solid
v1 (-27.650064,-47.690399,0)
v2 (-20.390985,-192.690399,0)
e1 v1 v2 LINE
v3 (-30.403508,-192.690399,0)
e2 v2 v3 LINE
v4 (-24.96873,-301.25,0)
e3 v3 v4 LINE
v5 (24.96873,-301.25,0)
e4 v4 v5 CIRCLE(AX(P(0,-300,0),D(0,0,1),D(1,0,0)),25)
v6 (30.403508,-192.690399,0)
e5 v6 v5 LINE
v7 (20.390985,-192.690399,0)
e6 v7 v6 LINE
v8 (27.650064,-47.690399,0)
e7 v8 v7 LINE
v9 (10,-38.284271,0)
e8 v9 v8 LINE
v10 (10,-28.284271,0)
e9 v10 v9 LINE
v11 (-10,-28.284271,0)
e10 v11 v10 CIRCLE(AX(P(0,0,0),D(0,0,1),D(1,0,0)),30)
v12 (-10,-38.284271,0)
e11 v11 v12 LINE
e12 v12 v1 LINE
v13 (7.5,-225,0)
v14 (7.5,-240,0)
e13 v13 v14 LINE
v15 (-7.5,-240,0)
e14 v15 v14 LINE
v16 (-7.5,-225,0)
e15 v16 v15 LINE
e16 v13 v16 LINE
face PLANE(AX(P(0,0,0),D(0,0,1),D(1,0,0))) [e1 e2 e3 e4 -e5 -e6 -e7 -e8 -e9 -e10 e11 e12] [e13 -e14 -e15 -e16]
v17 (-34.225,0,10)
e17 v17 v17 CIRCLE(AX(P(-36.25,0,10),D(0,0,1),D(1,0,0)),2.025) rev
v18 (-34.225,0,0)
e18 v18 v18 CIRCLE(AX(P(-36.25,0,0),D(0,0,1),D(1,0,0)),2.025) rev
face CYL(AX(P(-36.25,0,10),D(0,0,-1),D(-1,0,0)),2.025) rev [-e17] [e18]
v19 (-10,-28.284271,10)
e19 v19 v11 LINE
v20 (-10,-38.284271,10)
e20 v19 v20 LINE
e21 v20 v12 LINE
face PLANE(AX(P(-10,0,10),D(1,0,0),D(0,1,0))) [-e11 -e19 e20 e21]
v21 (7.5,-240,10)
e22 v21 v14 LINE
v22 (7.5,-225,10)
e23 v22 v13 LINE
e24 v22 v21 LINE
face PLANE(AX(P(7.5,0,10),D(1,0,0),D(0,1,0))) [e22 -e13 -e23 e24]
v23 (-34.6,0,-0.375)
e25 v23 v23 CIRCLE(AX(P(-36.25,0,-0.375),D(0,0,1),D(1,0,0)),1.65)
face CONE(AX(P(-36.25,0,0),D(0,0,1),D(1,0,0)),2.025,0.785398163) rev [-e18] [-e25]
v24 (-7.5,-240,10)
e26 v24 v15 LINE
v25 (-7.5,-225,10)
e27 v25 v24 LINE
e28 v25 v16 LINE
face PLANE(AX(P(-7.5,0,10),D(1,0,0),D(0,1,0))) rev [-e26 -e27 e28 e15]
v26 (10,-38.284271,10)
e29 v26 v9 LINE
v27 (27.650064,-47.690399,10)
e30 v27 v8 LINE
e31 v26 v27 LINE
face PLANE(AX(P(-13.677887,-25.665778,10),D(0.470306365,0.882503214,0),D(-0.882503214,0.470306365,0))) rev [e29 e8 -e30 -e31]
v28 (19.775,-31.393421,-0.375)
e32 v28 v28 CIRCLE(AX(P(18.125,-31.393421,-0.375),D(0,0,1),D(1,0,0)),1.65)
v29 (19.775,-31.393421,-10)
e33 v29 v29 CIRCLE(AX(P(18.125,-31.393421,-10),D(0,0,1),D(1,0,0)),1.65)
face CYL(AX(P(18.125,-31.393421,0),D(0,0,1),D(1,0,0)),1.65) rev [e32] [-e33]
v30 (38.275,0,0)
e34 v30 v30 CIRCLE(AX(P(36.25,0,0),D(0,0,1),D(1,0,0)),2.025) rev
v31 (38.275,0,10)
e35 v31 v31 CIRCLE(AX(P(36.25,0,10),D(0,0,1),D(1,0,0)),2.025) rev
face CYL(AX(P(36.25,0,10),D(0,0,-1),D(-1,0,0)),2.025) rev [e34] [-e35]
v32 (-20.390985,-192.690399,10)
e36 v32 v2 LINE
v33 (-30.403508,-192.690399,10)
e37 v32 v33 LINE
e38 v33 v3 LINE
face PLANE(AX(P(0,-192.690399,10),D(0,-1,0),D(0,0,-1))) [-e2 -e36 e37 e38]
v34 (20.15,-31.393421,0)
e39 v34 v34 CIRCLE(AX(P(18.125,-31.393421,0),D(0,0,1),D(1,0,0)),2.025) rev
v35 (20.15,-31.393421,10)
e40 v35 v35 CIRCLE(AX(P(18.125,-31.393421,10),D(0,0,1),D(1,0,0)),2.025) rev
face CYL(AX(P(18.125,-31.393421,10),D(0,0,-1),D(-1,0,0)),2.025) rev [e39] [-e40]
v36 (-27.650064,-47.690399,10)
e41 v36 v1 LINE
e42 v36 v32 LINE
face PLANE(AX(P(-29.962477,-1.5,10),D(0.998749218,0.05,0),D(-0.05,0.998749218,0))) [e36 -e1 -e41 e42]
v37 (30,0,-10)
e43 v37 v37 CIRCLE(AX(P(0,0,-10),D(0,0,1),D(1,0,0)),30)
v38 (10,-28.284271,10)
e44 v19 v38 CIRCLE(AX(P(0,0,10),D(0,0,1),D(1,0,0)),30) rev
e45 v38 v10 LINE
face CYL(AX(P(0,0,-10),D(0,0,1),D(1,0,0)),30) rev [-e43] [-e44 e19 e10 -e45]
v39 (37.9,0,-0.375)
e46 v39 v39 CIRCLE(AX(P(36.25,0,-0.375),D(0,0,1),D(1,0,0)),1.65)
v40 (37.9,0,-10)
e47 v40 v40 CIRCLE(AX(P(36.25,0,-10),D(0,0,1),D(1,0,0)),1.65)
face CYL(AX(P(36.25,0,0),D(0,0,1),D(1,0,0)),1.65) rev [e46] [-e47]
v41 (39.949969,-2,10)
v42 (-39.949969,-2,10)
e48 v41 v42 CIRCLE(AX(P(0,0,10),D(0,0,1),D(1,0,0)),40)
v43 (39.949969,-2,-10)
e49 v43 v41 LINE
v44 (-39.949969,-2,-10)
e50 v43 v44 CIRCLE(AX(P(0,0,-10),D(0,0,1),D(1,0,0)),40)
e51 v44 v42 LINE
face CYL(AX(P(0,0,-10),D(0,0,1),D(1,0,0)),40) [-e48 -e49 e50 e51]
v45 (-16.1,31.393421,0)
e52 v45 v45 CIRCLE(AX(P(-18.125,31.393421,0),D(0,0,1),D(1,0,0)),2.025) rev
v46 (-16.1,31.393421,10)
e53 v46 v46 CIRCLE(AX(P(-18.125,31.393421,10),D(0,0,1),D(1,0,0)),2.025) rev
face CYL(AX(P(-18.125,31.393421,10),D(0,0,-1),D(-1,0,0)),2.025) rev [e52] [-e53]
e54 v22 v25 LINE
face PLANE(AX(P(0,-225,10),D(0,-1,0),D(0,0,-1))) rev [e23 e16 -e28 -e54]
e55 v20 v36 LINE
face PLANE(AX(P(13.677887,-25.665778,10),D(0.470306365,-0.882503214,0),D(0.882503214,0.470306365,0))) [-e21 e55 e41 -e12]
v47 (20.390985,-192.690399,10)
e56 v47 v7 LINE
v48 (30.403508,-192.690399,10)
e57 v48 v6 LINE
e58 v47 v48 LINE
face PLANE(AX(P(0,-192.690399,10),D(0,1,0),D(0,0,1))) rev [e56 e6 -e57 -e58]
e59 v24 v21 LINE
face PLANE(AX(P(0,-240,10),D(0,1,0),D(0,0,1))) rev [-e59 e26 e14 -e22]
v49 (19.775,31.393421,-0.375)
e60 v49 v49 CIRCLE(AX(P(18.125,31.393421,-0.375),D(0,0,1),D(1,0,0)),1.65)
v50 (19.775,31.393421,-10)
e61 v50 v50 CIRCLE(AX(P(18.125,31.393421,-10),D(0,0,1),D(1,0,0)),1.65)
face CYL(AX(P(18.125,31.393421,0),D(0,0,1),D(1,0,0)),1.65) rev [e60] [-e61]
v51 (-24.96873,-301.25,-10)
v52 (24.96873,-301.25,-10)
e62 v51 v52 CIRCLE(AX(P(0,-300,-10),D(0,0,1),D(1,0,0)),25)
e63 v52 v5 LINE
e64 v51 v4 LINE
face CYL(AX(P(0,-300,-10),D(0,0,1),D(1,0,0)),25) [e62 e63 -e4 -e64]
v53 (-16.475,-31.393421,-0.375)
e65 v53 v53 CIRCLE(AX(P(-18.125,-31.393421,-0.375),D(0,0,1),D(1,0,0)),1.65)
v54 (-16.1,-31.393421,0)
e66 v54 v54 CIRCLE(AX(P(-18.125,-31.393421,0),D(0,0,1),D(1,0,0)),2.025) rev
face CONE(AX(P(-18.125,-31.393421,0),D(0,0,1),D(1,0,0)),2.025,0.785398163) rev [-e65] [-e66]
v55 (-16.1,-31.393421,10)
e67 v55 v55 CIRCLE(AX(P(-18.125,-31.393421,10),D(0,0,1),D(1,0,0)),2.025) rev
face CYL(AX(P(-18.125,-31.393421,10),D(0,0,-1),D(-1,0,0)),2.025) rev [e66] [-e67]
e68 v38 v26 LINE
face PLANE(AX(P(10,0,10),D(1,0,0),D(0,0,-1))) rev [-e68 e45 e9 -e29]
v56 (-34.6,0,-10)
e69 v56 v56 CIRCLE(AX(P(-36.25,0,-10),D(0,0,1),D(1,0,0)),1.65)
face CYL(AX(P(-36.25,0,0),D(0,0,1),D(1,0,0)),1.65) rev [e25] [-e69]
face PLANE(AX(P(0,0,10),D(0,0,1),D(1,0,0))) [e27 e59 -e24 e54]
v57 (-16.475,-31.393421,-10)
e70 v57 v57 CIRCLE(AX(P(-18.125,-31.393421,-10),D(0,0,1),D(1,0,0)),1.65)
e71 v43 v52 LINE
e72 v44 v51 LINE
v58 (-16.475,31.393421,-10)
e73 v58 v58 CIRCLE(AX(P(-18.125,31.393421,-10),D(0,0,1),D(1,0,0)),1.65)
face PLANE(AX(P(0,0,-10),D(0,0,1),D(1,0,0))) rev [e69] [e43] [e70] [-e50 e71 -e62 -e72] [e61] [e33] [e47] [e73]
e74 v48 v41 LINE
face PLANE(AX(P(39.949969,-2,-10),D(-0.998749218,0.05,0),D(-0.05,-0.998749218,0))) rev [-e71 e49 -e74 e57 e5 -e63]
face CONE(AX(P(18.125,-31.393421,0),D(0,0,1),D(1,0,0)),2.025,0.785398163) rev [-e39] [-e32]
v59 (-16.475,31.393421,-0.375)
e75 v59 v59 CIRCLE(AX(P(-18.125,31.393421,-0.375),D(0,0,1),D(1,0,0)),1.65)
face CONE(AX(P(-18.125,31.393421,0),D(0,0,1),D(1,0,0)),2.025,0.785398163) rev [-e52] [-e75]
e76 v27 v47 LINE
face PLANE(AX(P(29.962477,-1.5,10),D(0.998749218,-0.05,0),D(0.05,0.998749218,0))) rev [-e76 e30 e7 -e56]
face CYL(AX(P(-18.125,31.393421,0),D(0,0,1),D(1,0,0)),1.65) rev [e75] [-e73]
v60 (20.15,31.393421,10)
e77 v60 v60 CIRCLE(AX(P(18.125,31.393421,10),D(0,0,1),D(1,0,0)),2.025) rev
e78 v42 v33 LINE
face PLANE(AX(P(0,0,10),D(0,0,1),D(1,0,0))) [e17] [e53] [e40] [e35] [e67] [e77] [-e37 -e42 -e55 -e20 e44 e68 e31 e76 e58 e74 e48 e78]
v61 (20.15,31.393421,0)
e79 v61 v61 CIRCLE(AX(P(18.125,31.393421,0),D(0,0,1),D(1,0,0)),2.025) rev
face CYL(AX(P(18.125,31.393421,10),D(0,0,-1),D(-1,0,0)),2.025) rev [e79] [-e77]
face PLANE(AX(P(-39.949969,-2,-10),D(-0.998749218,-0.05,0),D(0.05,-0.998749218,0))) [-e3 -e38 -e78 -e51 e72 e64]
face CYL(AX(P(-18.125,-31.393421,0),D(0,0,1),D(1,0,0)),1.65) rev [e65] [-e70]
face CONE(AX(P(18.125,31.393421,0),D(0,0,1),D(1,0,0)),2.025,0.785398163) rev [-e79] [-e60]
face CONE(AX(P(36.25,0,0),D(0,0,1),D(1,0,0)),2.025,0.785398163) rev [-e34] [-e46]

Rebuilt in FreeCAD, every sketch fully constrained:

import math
import FreeCAD as App
import Part
import Sketcher

V = App.Vector
Q = App.Units.Quantity


def add_polygon(sketch, points):
    """Adds a closed chain of lines whose ends are joined by coincident constraints."""
    first, n = sketch.GeometryCount, len(points)
    for a, b in zip(points, points[1:] + points[:1]):
        sketch.addGeometry(Part.LineSegment(App.Vector(*a, 0), App.Vector(*b, 0)), False)
    for i in range(n):
        sketch.addConstraint(Sketcher.Constraint("Coincident", first + i, 2, first + (i + 1) % n, 1))

doc = App.newDocument("Part")
body = doc.addObject("PartDesign::Body", "Body")

# Sketch on XY plane
sketch1 = body.newObject("Sketcher::SketchObject", "Sketch")
sketch1.AttachmentSupport = (doc.getObject("XY_Plane"), [""])
sketch1.MapMode = "FlatFace"
sketch1.addGeometry([
    Part.Circle(V(0, 0, 0), V(0, 0, 1), 40),
    Part.Circle(V(0, 0, 0), V(0, 0, 1), 30),
], False)
sketch1.addConstraint([
    Sketcher.Constraint("Coincident", 0, 3, -1, 1),
    Sketcher.Constraint("Coincident", 1, 3, -1, 1),
    Sketcher.Constraint("Diameter", 0, Q("80 mm")),
    Sketcher.Constraint("Diameter", 1, Q("60 mm")),
])
pad1 = body.newObject("PartDesign::Pad", "Pad")
pad1.Profile = sketch1
pad1.Length = 10
pad1.Reversed = True

# Sketch on XY plane
sketch2 = body.newObject("Sketcher::SketchObject", "Sketch001")
sketch2.AttachmentSupport = (doc.getObject("XY_Plane"), [""])
sketch2.MapMode = "FlatFace"
sketch2.addGeometry(Part.Circle(V(36.2, 0, 0), V(0, 0, 1), 1.6), False)
sketch2.addConstraint([
    Sketcher.Constraint("PointOnObject", 0, 3, -1),
    Sketcher.Constraint("Diameter", 0, Q("3.3 mm")),
    Sketcher.Constraint("DistanceX", -1, 1, 0, 3, Q("36.25 mm")),
])
doc.recompute()
hole = body.newObject("PartDesign::Hole", "Hole")
hole.Profile = sketch2
hole.ThreadType = "None"
hole.Diameter = 3.3
hole.DepthType = "ThroughAll"
hole.HoleCutType = "Countersink"
hole.HoleCutDiameter = 4.05
hole.HoleCutCountersinkAngle = 90
doc.recompute()

polarpattern = body.newObject("PartDesign::PolarPattern", "PolarPattern")
polarpattern.Originals = [hole]
polarpattern.Axis = (doc.getObject("Z_Axis"), [""])
polarpattern.Angle = 360
polarpattern.Occurrences = 6
body.Tip = polarpattern

# Sketch on XY plane
sketch3 = body.newObject("Sketcher::SketchObject", "Sketch002")
sketch3.AttachmentSupport = (doc.getObject("XY_Plane"), [""])
sketch3.MapMode = "FlatFace"
sketch3.addGeometry([
    Part.ArcOfCircle(Part.Circle(V(0, 0, 0), V(0, 0, 1), 40), math.radians(-177), math.radians(-3)),
    Part.LineSegment(V(-40, -2, 0), V(-25, -301, 0)),
    Part.ArcOfCircle(Part.Circle(V(0, -300, 0), V(0, 0, 1), 25), math.radians(-177), math.radians(-3)),
    Part.LineSegment(V(25, -301, 0), V(40, -2, 0)),
], False)
sketch3.addConstraint([
    Sketcher.Constraint("Tangent", 0, 1, 1, 1),
    Sketcher.Constraint("Tangent", 1, 2, 2, 1),
    Sketcher.Constraint("Tangent", 2, 2, 3, 1),
    Sketcher.Constraint("Tangent", 3, 2, 0, 2),
    Sketcher.Constraint("Coincident", 0, 3, -1, 1),
    Sketcher.Constraint("PointOnObject", 2, 3, -2),
    Sketcher.Constraint("Radius", 0, Q("40 mm")),
    Sketcher.Constraint("Radius", 2, Q("25 mm")),
    Sketcher.Constraint("DistanceY", 2, 3, -1, 1, Q("300 mm")),
])
pad2 = body.newObject("PartDesign::Pad", "Pad001")
pad2.Profile = sketch3
pad2.Length = 10
pad2.Reversed = True

# Sketch on XY plane
sketch4 = body.newObject("Sketcher::SketchObject", "Sketch003")
sketch4.AttachmentSupport = (doc.getObject("XY_Plane"), [""])
sketch4.MapMode = "FlatFace"
sketch4.AttachmentOffset = App.Placement(V(0, 0, 10), App.Rotation())
add_polygon(sketch4, [(7.5, -240), (7.5, -225), (-7.5, -225), (-7.5, -240)])  # lines 0-3
sketch4.addGeometry(Part.LineSegment(V(20.4, -192.7, 0), V(30.4, -192.7, 0)), False)  # 4
sketch4.addGeometry(Part.LineSegment(V(30.4, -192.7, 0), V(39.9, -2, 0)), False)  # 5
sketch4.addGeometry(Part.ArcOfCircle(Part.Circle(V(0, 0, 0), V(0, 0, 1), 40), math.radians(-3), math.radians(90)), False)  # 6
sketch4.addGeometry(Part.ArcOfCircle(Part.Circle(V(0, 0, 0), V(0, 0, 1), 40), math.radians(90), math.radians(183)), False)  # 7
sketch4.addGeometry(Part.LineSegment(V(-39.9, -2, 0), V(-30.4, -192.7, 0)), False)  # 8
sketch4.addGeometry(Part.LineSegment(V(-30.4, -192.7, 0), V(-20.4, -192.7, 0)), False)  # 9
sketch4.addGeometry(Part.LineSegment(V(-20.4, -192.7, 0), V(-27.7, -47.7, 0)), False)  # 10
sketch4.addGeometry(Part.LineSegment(V(-27.7, -47.7, 0), V(-10, -38.3, 0)), False)  # 11
sketch4.addGeometry(Part.LineSegment(V(-10, -38.3, 0), V(-10, -28.3, 0)), False)  # 12
sketch4.addGeometry(Part.ArcOfCircle(Part.Circle(V(0, 0, 0), V(0, 0, 1), 30), math.radians(90), math.radians(251)), False)  # 13
sketch4.addGeometry(Part.ArcOfCircle(Part.Circle(V(0, 0, 0), V(0, 0, 1), 30), math.radians(0), math.radians(90)), False)  # 14
sketch4.addGeometry(Part.ArcOfCircle(Part.Circle(V(0, 0, 0), V(0, 0, 1), 30), math.radians(-71), math.radians(0)), False)  # 15
sketch4.addGeometry(Part.LineSegment(V(10, -28.3, 0), V(10, -38.3, 0)), False)  # 16
sketch4.addGeometry(Part.LineSegment(V(10, -38.3, 0), V(27.7, -47.7, 0)), False)  # 17
sketch4.addGeometry(Part.LineSegment(V(27.7, -47.7, 0), V(20.4, -192.7, 0)), False)  # 18
sketch4.addGeometry(Part.Circle(V(18.1, -31.4, 0), V(0, 0, 1), 2), False)  # 19
sketch4.addGeometry(Part.Circle(V(36.2, 0, 0), V(0, 0, 1), 2), False)  # 20
sketch4.addGeometry(Part.Circle(V(18.1, 31.4, 0), V(0, 0, 1), 2), False)  # 21
sketch4.addGeometry(Part.Circle(V(-18.1, 31.4, 0), V(0, 0, 1), 2), False)  # 22
sketch4.addGeometry(Part.Circle(V(-36.2, 0, 0), V(0, 0, 1), 2), False)  # 23
sketch4.addGeometry(Part.Circle(V(-18.1, -31.4, 0), V(0, 0, 1), 2), False)  # 24
sketch4.addConstraint([
    Sketcher.Constraint("Coincident", 4, 2, 5, 1),
    Sketcher.Constraint("Tangent", 5, 2, 6, 1),
    Sketcher.Constraint("Tangent", 6, 2, 7, 1),
    Sketcher.Constraint("Tangent", 7, 2, 8, 1),
    Sketcher.Constraint("Coincident", 8, 2, 9, 1),
    Sketcher.Constraint("Coincident", 9, 2, 10, 1),
    Sketcher.Constraint("Coincident", 10, 2, 11, 1),
    Sketcher.Constraint("Coincident", 11, 2, 12, 1),
    Sketcher.Constraint("Coincident", 12, 2, 13, 2),
    Sketcher.Constraint("Tangent", 13, 1, 14, 2),
    Sketcher.Constraint("Tangent", 14, 1, 15, 2),
    Sketcher.Constraint("Coincident", 15, 1, 16, 1),
    Sketcher.Constraint("Coincident", 16, 2, 17, 1),
    Sketcher.Constraint("Coincident", 17, 2, 18, 1),
    Sketcher.Constraint("Coincident", 18, 2, 4, 1),
    Sketcher.Constraint("Vertical", 0),
    Sketcher.Constraint("Horizontal", 1),
    Sketcher.Constraint("Vertical", 2),
    Sketcher.Constraint("Horizontal", 3),
    Sketcher.Constraint("Horizontal", 4),
    Sketcher.Constraint("Horizontal", 9),
    Sketcher.Constraint("Vertical", 12),
    Sketcher.Constraint("Vertical", 16),
    Sketcher.Constraint("Coincident", 6, 3, -1, 1),
    Sketcher.Constraint("Coincident", 13, 3, -1, 1),
    Sketcher.Constraint("Coincident", 15, 3, -1, 1),
    Sketcher.Constraint("Equal", 6, 7),
    Sketcher.Constraint("Equal", 19, 20),
    Sketcher.Constraint("Equal", 20, 21),
    Sketcher.Constraint("Equal", 21, 22),
    Sketcher.Constraint("Equal", 22, 23),
    Sketcher.Constraint("Equal", 23, 24),
    Sketcher.Constraint("Symmetric", 19, 3, 22, 3, -1, 1),
    Sketcher.Constraint("Symmetric", 20, 3, 23, 3, -1, 1),
    Sketcher.Constraint("Symmetric", 21, 3, 24, 3, -1, 1),
    Sketcher.Constraint("Symmetric", 21, 3, 22, 3, -2),
    Sketcher.Constraint("Symmetric", 4, 2, 8, 2, -2),
    Sketcher.Constraint("Symmetric", 11, 2, 16, 2, -2),
    Sketcher.Constraint("Symmetric", 10, 2, 17, 2, -2),
    Sketcher.Constraint("PointOnObject", 20, 3, -1),
    Sketcher.Constraint("PointOnObject", 6, 2, -2),
    Sketcher.Constraint("PointOnObject", 13, 1, -2),
    Sketcher.Constraint("PointOnObject", 14, 1, -1),
    Sketcher.Constraint("Parallel", 8, 10),
    Sketcher.Constraint("Parallel", 5, 18),
    Sketcher.Constraint("Equal", 3, 0),
    Sketcher.Constraint("Radius", 6, Q("40 mm")),
    Sketcher.Constraint("Radius", 13, Q("30 mm")),
    Sketcher.Constraint("Diameter", 19, Q("4.05 mm")),
    Sketcher.Constraint("DistanceX", 1, 2, 1, 1, Q("15 mm")),
    Sketcher.Constraint("DistanceY", 12, 1, 12, 2, Q("10 mm")),
    Sketcher.Constraint("Distance", 11, Q("20 mm")),
    Sketcher.Constraint("DistanceY", 0, 2, -1, 1, Q("225 mm")),
    Sketcher.Constraint("DistanceY", 5, 2, -1, 1, Q("2 mm")),
    Sketcher.Constraint("DistanceX", 11, 2, -1, 1, Q("10 mm")),
    Sketcher.Constraint("DistanceX", -1, 1, 0, 2, Q("7.5 mm")),
    Sketcher.Constraint("DistanceX", -1, 1, 20, 3, Q("36.25 mm")),
    Sketcher.Constraint("DistanceX", 22, 3, 21, 3, Q("36.25 mm")),
    Sketcher.Constraint("DistanceY", 4, 2, -1, 1, Q("192.690399 mm")),
    Sketcher.Constraint("DistanceY", 10, 2, -1, 1, Q("47.690399 mm")),
    Sketcher.Constraint("DistanceY", 19, 3, -1, 1, Q("31.393421 mm")),
])
pad3 = body.newObject("PartDesign::Pad", "Pad002")
pad3.Profile = sketch4
pad3.Length = 10
pad3.Reversed = True

doc.recompute()
